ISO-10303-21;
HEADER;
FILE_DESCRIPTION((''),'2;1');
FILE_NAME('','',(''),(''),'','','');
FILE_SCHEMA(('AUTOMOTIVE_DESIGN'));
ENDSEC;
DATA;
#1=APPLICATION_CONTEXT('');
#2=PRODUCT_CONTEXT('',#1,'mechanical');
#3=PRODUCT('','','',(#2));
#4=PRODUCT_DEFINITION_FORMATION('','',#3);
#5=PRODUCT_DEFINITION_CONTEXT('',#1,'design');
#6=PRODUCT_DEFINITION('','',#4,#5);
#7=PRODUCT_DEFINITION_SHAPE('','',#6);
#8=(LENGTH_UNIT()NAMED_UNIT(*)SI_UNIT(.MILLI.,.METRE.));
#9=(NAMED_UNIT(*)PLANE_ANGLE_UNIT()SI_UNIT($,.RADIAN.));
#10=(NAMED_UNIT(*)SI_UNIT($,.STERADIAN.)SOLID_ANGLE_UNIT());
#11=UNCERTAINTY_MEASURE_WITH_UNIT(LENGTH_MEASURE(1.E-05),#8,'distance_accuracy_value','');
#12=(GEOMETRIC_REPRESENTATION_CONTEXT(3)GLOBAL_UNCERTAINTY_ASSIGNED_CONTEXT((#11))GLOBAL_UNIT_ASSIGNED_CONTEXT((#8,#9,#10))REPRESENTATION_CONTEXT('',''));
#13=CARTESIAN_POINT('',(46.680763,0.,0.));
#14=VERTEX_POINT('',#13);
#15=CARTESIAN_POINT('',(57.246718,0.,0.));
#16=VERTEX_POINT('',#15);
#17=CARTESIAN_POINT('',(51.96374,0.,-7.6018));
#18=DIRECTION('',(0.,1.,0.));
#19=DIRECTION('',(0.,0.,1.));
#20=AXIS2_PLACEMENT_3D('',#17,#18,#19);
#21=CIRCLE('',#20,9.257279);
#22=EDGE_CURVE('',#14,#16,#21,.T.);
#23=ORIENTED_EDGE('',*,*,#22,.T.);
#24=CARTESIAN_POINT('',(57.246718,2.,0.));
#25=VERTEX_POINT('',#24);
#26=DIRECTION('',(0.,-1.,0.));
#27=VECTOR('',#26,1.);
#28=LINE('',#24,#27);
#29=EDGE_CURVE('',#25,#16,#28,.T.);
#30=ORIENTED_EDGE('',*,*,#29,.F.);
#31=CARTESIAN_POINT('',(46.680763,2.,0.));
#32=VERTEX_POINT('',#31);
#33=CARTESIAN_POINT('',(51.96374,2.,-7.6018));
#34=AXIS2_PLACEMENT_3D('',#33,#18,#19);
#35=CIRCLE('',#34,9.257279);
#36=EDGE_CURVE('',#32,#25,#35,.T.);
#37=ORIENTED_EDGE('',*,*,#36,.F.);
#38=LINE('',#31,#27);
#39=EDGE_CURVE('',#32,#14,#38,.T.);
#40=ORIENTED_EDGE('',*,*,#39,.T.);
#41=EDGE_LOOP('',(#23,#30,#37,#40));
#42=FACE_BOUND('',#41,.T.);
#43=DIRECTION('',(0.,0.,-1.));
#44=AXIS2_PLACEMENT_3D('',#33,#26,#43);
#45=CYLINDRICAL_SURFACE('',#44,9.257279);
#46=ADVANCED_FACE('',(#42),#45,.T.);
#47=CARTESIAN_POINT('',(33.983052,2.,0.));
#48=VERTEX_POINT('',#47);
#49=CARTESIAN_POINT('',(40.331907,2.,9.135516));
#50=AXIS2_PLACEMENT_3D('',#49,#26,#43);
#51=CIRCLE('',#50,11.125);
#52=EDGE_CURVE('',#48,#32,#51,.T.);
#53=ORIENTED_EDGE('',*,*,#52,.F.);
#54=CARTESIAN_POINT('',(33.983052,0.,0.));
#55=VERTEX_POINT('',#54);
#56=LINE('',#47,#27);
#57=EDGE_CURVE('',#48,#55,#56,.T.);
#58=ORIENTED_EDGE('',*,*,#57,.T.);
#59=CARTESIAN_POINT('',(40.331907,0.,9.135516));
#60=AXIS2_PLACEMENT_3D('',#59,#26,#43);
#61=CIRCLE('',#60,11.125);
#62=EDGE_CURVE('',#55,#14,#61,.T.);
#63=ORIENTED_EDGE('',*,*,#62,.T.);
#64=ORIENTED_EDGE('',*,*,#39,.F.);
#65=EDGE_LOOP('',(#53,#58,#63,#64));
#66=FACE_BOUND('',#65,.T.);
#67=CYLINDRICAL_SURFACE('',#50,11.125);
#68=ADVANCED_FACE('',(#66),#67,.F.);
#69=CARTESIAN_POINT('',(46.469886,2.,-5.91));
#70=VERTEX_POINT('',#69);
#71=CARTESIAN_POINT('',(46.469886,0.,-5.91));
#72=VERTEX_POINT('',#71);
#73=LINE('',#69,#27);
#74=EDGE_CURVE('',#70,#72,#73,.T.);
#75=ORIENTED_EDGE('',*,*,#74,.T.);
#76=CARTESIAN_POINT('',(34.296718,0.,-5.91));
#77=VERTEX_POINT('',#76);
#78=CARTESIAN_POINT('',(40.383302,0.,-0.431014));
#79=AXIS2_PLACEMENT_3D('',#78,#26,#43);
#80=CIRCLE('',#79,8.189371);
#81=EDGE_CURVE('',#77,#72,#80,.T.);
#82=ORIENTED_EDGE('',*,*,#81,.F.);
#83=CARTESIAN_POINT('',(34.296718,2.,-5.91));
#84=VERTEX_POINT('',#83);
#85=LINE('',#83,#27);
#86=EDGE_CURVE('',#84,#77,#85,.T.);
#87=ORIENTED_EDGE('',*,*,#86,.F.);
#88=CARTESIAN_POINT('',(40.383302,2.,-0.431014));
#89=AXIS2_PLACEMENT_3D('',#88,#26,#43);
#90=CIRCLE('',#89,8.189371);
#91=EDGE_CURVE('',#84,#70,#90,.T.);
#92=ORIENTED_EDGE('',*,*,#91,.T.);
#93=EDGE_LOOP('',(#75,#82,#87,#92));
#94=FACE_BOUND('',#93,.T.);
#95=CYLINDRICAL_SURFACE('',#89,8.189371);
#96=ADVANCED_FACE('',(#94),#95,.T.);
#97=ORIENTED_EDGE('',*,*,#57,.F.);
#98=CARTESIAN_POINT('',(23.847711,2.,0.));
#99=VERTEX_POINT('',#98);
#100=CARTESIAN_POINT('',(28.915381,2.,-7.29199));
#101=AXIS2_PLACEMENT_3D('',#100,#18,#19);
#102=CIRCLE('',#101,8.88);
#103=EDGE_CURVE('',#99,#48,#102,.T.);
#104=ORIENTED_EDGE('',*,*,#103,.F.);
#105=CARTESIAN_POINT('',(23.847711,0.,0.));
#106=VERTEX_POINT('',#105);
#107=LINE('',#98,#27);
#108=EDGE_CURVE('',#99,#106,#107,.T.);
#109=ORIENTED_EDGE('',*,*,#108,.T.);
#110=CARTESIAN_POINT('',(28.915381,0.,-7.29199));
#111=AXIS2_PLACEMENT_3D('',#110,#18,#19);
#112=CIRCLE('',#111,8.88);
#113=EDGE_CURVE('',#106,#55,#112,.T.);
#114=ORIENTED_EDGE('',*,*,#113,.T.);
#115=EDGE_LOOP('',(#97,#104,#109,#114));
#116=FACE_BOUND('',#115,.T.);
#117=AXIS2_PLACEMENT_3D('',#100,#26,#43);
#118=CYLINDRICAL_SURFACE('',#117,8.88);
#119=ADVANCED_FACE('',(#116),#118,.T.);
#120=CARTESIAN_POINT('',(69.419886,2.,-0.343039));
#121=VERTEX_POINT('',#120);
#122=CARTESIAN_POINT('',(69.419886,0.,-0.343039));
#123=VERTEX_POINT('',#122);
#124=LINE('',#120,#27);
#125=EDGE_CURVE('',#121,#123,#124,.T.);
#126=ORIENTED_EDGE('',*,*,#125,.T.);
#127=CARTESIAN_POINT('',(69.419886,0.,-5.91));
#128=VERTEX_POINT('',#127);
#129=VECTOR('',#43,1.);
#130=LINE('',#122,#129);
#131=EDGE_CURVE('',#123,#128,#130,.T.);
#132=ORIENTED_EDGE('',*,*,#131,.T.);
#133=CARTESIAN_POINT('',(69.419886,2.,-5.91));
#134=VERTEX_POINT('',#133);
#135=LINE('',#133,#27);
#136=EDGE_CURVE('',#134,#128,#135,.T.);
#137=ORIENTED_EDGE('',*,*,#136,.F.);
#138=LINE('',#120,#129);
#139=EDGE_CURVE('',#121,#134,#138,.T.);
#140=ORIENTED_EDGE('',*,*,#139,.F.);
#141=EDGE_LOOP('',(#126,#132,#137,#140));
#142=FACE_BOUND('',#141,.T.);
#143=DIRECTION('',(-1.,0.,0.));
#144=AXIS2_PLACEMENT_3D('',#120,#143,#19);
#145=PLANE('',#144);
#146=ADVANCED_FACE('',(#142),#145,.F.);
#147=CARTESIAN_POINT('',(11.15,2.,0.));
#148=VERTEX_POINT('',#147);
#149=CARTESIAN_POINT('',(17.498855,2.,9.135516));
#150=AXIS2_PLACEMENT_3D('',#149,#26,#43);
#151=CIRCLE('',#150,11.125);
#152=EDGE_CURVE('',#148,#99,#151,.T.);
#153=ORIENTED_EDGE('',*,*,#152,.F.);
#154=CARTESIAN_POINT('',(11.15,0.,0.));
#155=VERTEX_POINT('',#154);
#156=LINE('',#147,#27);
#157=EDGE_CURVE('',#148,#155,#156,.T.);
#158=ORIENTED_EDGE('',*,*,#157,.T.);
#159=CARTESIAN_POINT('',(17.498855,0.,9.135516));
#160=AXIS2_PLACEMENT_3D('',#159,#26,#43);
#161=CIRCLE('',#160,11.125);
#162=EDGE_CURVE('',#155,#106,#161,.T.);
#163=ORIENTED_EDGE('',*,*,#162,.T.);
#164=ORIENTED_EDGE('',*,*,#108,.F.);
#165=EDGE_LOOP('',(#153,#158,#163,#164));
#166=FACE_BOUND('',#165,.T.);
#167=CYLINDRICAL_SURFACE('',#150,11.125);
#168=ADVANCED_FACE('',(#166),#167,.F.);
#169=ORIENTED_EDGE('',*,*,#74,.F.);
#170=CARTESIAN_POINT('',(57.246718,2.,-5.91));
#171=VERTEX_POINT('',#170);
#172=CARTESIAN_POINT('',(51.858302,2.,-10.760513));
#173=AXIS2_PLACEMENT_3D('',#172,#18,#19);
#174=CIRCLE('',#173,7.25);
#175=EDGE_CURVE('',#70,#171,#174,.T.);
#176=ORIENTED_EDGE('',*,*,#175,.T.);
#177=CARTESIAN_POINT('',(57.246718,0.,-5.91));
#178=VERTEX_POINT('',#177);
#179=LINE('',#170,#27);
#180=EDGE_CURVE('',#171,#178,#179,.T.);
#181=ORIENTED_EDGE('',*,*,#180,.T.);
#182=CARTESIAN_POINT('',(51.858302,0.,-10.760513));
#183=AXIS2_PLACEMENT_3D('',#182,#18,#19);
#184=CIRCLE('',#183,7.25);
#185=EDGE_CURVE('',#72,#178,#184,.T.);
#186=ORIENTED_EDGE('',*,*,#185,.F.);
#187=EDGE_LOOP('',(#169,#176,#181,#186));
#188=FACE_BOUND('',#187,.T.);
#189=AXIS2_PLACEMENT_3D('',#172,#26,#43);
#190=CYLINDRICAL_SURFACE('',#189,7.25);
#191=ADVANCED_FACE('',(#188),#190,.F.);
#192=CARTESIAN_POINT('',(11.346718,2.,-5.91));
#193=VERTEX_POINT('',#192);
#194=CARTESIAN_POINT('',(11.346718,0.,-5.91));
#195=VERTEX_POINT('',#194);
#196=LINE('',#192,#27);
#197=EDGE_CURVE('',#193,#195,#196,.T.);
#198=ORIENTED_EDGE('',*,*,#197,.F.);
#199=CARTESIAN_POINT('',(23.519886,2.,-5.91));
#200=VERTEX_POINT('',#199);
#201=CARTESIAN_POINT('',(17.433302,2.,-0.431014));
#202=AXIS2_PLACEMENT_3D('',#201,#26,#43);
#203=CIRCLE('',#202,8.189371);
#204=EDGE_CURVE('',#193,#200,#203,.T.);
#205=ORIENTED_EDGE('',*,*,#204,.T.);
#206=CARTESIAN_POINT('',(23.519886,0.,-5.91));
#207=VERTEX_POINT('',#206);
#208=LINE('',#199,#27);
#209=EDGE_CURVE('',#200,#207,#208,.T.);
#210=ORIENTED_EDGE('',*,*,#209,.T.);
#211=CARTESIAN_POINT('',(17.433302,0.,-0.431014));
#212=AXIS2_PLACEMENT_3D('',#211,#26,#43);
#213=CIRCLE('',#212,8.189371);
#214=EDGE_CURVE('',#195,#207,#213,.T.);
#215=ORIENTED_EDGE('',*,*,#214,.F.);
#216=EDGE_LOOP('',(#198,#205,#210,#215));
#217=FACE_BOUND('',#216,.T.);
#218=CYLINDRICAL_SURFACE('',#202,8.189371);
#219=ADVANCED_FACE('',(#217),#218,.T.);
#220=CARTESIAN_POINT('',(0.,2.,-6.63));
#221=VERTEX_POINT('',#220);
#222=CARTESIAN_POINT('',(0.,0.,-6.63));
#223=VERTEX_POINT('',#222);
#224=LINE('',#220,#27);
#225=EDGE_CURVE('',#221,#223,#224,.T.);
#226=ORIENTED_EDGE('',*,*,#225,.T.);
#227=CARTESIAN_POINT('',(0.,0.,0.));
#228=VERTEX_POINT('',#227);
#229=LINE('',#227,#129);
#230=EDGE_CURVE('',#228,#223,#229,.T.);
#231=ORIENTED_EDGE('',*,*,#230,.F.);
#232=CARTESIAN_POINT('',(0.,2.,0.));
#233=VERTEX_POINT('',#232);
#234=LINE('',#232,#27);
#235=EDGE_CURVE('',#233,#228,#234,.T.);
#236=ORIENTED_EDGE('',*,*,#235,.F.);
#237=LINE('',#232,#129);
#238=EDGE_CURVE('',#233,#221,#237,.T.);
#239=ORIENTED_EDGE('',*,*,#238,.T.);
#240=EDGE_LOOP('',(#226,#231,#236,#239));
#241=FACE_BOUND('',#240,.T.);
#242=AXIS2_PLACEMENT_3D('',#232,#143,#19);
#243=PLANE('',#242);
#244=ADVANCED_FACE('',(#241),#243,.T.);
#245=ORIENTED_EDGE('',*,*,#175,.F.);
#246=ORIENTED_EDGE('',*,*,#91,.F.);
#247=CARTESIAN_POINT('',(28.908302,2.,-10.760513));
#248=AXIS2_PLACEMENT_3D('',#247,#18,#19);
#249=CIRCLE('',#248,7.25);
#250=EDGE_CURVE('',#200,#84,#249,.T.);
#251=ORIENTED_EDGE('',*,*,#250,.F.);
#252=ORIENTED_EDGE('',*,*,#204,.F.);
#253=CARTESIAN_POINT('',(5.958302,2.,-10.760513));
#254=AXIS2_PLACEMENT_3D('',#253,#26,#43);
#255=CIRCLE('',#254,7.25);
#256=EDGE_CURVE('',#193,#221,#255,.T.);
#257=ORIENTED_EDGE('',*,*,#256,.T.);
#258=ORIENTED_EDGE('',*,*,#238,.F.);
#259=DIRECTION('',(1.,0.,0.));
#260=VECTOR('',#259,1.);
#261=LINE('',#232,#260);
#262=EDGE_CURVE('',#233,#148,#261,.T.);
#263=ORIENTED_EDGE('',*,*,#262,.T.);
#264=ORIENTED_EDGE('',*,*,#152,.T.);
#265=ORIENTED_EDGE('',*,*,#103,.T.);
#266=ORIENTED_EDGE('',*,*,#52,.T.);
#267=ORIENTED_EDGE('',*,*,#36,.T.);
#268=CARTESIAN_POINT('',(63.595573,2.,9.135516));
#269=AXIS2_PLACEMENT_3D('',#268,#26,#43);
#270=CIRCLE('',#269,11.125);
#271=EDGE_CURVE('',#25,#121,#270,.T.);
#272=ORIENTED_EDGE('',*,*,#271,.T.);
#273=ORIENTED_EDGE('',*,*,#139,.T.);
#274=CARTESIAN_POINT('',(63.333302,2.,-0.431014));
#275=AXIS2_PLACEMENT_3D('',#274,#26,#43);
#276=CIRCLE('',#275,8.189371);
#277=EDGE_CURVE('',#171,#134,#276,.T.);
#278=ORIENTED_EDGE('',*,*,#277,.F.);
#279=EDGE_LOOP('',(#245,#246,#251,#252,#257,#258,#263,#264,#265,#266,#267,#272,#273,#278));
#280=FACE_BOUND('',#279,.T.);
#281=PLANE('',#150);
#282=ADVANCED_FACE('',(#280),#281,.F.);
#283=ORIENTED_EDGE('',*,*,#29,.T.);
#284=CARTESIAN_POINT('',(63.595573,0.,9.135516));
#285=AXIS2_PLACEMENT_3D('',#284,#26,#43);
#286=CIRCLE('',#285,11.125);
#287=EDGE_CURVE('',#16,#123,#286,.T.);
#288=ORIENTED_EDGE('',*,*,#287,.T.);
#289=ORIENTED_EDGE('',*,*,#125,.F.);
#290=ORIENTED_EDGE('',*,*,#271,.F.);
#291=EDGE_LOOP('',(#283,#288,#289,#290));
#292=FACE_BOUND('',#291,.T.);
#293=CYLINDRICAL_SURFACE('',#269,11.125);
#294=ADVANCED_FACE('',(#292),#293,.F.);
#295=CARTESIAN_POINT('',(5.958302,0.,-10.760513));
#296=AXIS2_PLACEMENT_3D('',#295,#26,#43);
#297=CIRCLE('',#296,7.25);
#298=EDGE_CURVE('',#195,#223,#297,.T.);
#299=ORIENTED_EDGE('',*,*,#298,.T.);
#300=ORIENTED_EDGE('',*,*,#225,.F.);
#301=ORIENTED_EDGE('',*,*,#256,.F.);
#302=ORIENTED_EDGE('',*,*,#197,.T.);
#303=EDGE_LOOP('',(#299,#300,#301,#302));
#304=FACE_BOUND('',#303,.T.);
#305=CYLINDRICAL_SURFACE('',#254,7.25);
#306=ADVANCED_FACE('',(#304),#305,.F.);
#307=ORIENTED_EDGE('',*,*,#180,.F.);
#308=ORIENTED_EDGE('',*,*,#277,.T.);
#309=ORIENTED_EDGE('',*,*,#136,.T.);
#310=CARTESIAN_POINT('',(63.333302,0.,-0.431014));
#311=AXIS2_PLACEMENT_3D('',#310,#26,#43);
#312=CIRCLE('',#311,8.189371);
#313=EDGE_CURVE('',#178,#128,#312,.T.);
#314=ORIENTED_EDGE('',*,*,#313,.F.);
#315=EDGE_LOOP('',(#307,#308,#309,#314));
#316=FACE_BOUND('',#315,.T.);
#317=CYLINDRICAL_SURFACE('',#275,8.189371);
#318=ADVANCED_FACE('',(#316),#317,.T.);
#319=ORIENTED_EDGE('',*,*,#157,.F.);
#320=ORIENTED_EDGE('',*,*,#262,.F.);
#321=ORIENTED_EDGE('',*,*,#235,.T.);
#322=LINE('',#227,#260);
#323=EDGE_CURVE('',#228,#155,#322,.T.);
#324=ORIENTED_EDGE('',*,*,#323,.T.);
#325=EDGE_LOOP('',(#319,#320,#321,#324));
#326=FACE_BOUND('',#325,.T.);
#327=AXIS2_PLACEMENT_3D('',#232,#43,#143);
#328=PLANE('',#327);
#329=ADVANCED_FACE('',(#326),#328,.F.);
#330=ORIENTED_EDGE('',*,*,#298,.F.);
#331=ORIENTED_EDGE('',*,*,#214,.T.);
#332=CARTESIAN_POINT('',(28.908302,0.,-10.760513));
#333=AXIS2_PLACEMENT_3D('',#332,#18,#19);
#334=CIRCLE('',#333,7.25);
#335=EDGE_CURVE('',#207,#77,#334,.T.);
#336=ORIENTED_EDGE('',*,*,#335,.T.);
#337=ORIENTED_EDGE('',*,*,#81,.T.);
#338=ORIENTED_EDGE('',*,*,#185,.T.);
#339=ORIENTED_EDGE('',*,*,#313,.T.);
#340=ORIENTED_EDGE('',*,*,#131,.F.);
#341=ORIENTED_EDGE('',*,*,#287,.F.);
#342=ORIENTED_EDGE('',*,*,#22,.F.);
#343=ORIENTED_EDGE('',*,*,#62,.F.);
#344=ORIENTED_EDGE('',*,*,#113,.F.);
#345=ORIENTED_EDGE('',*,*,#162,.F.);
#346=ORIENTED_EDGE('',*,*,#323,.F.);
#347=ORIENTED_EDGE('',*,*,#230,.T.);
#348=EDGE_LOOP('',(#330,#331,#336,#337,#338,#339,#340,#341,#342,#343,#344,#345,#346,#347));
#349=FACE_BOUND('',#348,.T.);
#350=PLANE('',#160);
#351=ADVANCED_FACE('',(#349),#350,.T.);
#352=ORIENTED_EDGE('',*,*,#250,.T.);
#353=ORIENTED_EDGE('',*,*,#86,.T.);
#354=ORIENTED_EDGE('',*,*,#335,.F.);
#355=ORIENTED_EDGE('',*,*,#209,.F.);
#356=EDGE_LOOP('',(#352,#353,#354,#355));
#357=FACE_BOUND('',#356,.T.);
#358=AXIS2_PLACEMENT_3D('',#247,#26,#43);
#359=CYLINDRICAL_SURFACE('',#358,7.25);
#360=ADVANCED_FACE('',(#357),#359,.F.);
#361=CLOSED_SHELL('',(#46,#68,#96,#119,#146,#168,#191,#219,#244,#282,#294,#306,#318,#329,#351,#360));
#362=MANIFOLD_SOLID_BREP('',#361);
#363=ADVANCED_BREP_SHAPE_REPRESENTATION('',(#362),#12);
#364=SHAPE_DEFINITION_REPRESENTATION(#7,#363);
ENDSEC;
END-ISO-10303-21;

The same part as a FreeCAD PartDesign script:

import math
import FreeCAD as App
import Part
import Sketcher

V = App.Vector
Q = App.Units.Quantity

doc = App.newDocument("Part")
body = doc.addObject("PartDesign::Body", "Body")

sketch1 = body.newObject("Sketcher::SketchObject", "Sketch")
sketch1.AttachmentSupport = (doc.getObject("XZ_Plane"), [""])
sketch1.MapMode = "FlatFace"
sketch1.addGeometry([
    Part.LineSegment(V(0, -7, 0), V(0, 0, 0)),
    Part.LineSegment(V(0, 0, 0), V(11, 0, 0)),
    Part.ArcOfCircle(Part.Circle(V(17, 9, 0), V(0, 0, 1), 11), math.radians(-125), math.radians(-55)),
    Part.ArcOfCircle(Part.Circle(V(29, -7, 0), V(0, 0, 1), 9), math.radians(55), math.radians(125)),
    Part.ArcOfCircle(Part.Circle(V(40, 9, 0), V(0, 0, 1), 11), math.radians(-125), math.radians(-55)),
    Part.ArcOfCircle(Part.Circle(V(52, -8, 0), V(0, 0, 1), 9), math.radians(55), math.radians(125)),
    Part.ArcOfCircle(Part.Circle(V(64, 9, 0), V(0, 0, 1), 11), math.radians(-125), math.radians(-58)),
    Part.LineSegment(V(69, 0, 0), V(69, -6, 0)),
    Part.ArcOfCircle(Part.Circle(V(63, 0, 0), V(0, 0, 1), 8), math.radians(-138), math.radians(-42)),
    Part.ArcOfCircle(Part.Circle(V(52, -11, 0), V(0, 0, 1), 7), math.radians(42), math.radians(138)),
    Part.ArcOfCircle(Part.Circle(V(40, 0, 0), V(0, 0, 1), 8), math.radians(-138), math.radians(-42)),
    Part.ArcOfCircle(Part.Circle(V(29, -11, 0), V(0, 0, 1), 7), math.radians(42), math.radians(138)),
    Part.ArcOfCircle(Part.Circle(V(17, 0, 0), V(0, 0, 1), 8), math.radians(-138), math.radians(-42)),
    Part.ArcOfCircle(Part.Circle(V(6, -11, 0), V(0, 0, 1), 7), math.radians(42), math.radians(145)),
], False)
sketch1.addConstraint([
    Sketcher.Constraint("Coincident", 0, 2, 1, 1),
    Sketcher.Constraint("Coincident", 1, 2, 2, 1),
    Sketcher.Constraint("Tangent", 2, 2, 3, 2),
    Sketcher.Constraint("Tangent", 3, 1, 4, 1),
    Sketcher.Constraint("Tangent", 4, 2, 5, 2),
    Sketcher.Constraint("Tangent", 5, 1, 6, 1),
    Sketcher.Constraint("Coincident", 6, 2, 7, 1),
    Sketcher.Constraint("Coincident", 7, 2, 8, 2),
    Sketcher.Constraint("Tangent", 8, 1, 9, 1),
    Sketcher.Constraint("Tangent", 9, 2, 10, 2),
    Sketcher.Constraint("Tangent", 10, 1, 11, 1),
    Sketcher.Constraint("Tangent", 11, 2, 12, 2),
    Sketcher.Constraint("Tangent", 12, 1, 13, 1),
    Sketcher.Constraint("Coincident", 13, 2, 0, 1),
    Sketcher.Constraint("Vertical", 0),
    Sketcher.Constraint("Horizontal", 1),
    Sketcher.Constraint("Vertical", 7),
    Sketcher.Constraint("Coincident", 0, 2, -1, 1),
    Sketcher.Constraint("Equal", 2, 4),
    Sketcher.Constraint("Equal", 4, 6),
    Sketcher.Constraint("Equal", 8, 10),
    Sketcher.Constraint("Equal", 9, 11),
    Sketcher.Constraint("Equal", 10, 12),
    Sketcher.Constraint("Equal", 11, 13),
    Sketcher.Constraint("PointOnObject", 2, 2, -1),
    Sketcher.Constraint("PointOnObject", 3, 1, -1),
    Sketcher.Constraint("PointOnObject", 4, 2, -1),
    Sketcher.Constraint("PointOnObject", 5, 1, -1),
    Sketcher.Constraint("Horizontal", 8, 3, 10, 3),
    Sketcher.Constraint("Horizontal", 9, 3, 11, 3),
    Sketcher.Constraint("Horizontal", 10, 3, 12, 3),
    Sketcher.Constraint("Horizontal", 11, 3, 13, 3),
    Sketcher.Constraint("Horizontal", 7, 2, 8, 1),
    Sketcher.Constraint("Vertical", 5, 1, 8, 1),
    Sketcher.Constraint("Radius", 3, Q("8.88 mm")),
    Sketcher.Constraint("Radius", 9, Q("7.25 mm")),
    Sketcher.Constraint("Radius", 2, Q("11.125 mm")),
    Sketcher.Constraint("DistanceX", 1, 1, 1, 2, Q("11.15 mm")),
    Sketcher.Constraint("DistanceY", 0, 1, 0, 2, Q("6.63 mm")),
    Sketcher.Constraint("DistanceY", 7, 2, -1, 1, Q("5.91 mm")),
    Sketcher.Constraint("Radius", 5, Q("9.257279 mm")),
    Sketcher.Constraint("Radius", 8, Q("8.189371 mm")),
    Sketcher.Constraint("DistanceX", 10, 3, 8, 3, Q("22.95 mm")),
])
pad1 = body.newObject("PartDesign::Pad", "Pad")
pad1.Profile = sketch1
pad1.Length = 2
pad1.Reversed = True

doc.recompute()
